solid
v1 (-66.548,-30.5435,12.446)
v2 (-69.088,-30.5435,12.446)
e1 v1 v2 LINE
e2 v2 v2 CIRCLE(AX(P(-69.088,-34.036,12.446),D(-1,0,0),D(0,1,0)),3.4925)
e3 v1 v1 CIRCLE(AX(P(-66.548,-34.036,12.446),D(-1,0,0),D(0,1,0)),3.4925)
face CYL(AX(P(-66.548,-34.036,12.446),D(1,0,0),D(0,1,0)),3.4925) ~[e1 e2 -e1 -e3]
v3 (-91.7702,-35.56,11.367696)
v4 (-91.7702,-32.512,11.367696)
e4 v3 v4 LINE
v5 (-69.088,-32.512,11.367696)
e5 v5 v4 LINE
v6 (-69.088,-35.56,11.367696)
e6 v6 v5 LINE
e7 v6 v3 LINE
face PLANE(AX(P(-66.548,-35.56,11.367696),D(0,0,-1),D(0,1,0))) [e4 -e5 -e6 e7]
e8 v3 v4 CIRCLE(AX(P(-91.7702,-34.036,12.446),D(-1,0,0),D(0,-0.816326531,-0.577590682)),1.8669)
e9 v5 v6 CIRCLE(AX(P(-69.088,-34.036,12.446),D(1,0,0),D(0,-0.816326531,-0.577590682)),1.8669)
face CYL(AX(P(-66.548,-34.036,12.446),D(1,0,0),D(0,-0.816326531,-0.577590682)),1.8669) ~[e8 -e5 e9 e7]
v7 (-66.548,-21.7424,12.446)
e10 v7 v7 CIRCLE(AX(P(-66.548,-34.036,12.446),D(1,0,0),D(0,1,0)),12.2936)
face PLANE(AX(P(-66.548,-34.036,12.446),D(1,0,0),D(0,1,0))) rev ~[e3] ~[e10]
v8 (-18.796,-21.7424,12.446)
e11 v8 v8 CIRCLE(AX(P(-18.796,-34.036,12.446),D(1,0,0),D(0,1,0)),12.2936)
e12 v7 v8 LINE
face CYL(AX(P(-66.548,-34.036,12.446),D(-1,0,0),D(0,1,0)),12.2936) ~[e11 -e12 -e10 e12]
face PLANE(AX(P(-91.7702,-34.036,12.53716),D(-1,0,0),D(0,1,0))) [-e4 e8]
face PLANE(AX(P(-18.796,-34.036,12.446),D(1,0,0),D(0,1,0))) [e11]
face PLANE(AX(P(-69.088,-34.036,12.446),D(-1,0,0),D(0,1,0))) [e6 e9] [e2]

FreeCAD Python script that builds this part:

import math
import FreeCAD as App
import Part
import Sketcher
Q = App.Units.Quantity

doc = App.newDocument("Part")
body = doc.addObject("PartDesign::Body", "Body")

# Sketch on YZ plane
sketch1 = doc.addObject("Sketcher::SketchObject", "Sketch")
body.addObject(sketch1)
sketch1.AttachmentSupport = (doc.YZ_Plane, [""])
sketch1.MapMode = "FlatFace"
sketch1.addGeometry(Part.Circle(App.Vector(0, 0, 0), App.Vector(0, 0, 1), 12), False)
sketch1.addConstraint([
    Sketcher.Constraint("Coincident", 0, 3, -1, 1),
    Sketcher.Constraint("Diameter", 0, Q("0.968 in")),
])
pad1 = doc.addObject("PartDesign::Pad", "Pad")
body.addObject(pad1)
pad1.Profile = sketch1
pad1.Length = Q("1.88 in")

# Sketch on YZ plane
sketch2 = doc.addObject("Sketcher::SketchObject", "Sketch001")
body.addObject(sketch2)
sketch2.AttachmentSupport = (doc.YZ_Plane, [""])
sketch2.MapMode = "FlatFace"
sketch2.addGeometry([
    Part.ArcOfCircle(Part.Circle(App.Vector(0, 0, 0), App.Vector(0, 0, 1), 1.9), math.radians(-35), math.radians(215)),
    Part.LineSegment(App.Vector(1.5, -1.1, 0), App.Vector(-1.5, -1.1, 0)),
], False)
sketch2.addConstraint([
    Sketcher.Constraint("Coincident", 0, 1, 1, 1),
    Sketcher.Constraint("Coincident", 1, 2, 0, 2),
    Sketcher.Constraint("Horizontal", 1),
    Sketcher.Constraint("Coincident", 0, 3, -1, 1),
    Sketcher.Constraint("DistanceX", 1, 2, 1, 1, Q("0.12 in")),
    Sketcher.Constraint("Radius", 0, Q("0.0735 in")),
])
pad2 = doc.addObject("PartDesign::Pad", "Pad001")
body.addObject(pad2)
pad2.Profile = sketch2
pad2.Length = Q("0.993 in")
pad2.Reversed = True

# Sketch on YZ plane
sketch3 = doc.addObject("Sketcher::SketchObject", "Sketch002")
body.addObject(sketch3)
sketch3.AttachmentSupport = (doc.YZ_Plane, [""])
sketch3.MapMode = "FlatFace"
sketch3.addGeometry(Part.Circle(App.Vector(0, 0, 0), App.Vector(0, 0, 1), 3.5), False)
sketch3.addConstraint([
    Sketcher.Constraint("Coincident", 0, 3, -1, 1),
    Sketcher.Constraint("Diameter", 0, Q("0.275 in")),
])
pad3 = doc.addObject("PartDesign::Pad", "Pad002")
body.addObject(pad3)
pad3.Profile = sketch3
pad3.Length = Q("0.1 in")
pad3.Reversed = True
body2 = doc.addObject("PartDesign::Body", "Body001")
doc.recompute()

body.Placement = App.Placement(App.Vector(-66.548, -34.036, 12.446), App.Rotation(App.Vector(0, 0, 1), 0))
boolean = doc.addObject("PartDesign::Boolean", "Boolean")
body2.addObject(boolean)
boolean.Type = "Fuse"
boolean.addObjects([body])

doc.recompute()
